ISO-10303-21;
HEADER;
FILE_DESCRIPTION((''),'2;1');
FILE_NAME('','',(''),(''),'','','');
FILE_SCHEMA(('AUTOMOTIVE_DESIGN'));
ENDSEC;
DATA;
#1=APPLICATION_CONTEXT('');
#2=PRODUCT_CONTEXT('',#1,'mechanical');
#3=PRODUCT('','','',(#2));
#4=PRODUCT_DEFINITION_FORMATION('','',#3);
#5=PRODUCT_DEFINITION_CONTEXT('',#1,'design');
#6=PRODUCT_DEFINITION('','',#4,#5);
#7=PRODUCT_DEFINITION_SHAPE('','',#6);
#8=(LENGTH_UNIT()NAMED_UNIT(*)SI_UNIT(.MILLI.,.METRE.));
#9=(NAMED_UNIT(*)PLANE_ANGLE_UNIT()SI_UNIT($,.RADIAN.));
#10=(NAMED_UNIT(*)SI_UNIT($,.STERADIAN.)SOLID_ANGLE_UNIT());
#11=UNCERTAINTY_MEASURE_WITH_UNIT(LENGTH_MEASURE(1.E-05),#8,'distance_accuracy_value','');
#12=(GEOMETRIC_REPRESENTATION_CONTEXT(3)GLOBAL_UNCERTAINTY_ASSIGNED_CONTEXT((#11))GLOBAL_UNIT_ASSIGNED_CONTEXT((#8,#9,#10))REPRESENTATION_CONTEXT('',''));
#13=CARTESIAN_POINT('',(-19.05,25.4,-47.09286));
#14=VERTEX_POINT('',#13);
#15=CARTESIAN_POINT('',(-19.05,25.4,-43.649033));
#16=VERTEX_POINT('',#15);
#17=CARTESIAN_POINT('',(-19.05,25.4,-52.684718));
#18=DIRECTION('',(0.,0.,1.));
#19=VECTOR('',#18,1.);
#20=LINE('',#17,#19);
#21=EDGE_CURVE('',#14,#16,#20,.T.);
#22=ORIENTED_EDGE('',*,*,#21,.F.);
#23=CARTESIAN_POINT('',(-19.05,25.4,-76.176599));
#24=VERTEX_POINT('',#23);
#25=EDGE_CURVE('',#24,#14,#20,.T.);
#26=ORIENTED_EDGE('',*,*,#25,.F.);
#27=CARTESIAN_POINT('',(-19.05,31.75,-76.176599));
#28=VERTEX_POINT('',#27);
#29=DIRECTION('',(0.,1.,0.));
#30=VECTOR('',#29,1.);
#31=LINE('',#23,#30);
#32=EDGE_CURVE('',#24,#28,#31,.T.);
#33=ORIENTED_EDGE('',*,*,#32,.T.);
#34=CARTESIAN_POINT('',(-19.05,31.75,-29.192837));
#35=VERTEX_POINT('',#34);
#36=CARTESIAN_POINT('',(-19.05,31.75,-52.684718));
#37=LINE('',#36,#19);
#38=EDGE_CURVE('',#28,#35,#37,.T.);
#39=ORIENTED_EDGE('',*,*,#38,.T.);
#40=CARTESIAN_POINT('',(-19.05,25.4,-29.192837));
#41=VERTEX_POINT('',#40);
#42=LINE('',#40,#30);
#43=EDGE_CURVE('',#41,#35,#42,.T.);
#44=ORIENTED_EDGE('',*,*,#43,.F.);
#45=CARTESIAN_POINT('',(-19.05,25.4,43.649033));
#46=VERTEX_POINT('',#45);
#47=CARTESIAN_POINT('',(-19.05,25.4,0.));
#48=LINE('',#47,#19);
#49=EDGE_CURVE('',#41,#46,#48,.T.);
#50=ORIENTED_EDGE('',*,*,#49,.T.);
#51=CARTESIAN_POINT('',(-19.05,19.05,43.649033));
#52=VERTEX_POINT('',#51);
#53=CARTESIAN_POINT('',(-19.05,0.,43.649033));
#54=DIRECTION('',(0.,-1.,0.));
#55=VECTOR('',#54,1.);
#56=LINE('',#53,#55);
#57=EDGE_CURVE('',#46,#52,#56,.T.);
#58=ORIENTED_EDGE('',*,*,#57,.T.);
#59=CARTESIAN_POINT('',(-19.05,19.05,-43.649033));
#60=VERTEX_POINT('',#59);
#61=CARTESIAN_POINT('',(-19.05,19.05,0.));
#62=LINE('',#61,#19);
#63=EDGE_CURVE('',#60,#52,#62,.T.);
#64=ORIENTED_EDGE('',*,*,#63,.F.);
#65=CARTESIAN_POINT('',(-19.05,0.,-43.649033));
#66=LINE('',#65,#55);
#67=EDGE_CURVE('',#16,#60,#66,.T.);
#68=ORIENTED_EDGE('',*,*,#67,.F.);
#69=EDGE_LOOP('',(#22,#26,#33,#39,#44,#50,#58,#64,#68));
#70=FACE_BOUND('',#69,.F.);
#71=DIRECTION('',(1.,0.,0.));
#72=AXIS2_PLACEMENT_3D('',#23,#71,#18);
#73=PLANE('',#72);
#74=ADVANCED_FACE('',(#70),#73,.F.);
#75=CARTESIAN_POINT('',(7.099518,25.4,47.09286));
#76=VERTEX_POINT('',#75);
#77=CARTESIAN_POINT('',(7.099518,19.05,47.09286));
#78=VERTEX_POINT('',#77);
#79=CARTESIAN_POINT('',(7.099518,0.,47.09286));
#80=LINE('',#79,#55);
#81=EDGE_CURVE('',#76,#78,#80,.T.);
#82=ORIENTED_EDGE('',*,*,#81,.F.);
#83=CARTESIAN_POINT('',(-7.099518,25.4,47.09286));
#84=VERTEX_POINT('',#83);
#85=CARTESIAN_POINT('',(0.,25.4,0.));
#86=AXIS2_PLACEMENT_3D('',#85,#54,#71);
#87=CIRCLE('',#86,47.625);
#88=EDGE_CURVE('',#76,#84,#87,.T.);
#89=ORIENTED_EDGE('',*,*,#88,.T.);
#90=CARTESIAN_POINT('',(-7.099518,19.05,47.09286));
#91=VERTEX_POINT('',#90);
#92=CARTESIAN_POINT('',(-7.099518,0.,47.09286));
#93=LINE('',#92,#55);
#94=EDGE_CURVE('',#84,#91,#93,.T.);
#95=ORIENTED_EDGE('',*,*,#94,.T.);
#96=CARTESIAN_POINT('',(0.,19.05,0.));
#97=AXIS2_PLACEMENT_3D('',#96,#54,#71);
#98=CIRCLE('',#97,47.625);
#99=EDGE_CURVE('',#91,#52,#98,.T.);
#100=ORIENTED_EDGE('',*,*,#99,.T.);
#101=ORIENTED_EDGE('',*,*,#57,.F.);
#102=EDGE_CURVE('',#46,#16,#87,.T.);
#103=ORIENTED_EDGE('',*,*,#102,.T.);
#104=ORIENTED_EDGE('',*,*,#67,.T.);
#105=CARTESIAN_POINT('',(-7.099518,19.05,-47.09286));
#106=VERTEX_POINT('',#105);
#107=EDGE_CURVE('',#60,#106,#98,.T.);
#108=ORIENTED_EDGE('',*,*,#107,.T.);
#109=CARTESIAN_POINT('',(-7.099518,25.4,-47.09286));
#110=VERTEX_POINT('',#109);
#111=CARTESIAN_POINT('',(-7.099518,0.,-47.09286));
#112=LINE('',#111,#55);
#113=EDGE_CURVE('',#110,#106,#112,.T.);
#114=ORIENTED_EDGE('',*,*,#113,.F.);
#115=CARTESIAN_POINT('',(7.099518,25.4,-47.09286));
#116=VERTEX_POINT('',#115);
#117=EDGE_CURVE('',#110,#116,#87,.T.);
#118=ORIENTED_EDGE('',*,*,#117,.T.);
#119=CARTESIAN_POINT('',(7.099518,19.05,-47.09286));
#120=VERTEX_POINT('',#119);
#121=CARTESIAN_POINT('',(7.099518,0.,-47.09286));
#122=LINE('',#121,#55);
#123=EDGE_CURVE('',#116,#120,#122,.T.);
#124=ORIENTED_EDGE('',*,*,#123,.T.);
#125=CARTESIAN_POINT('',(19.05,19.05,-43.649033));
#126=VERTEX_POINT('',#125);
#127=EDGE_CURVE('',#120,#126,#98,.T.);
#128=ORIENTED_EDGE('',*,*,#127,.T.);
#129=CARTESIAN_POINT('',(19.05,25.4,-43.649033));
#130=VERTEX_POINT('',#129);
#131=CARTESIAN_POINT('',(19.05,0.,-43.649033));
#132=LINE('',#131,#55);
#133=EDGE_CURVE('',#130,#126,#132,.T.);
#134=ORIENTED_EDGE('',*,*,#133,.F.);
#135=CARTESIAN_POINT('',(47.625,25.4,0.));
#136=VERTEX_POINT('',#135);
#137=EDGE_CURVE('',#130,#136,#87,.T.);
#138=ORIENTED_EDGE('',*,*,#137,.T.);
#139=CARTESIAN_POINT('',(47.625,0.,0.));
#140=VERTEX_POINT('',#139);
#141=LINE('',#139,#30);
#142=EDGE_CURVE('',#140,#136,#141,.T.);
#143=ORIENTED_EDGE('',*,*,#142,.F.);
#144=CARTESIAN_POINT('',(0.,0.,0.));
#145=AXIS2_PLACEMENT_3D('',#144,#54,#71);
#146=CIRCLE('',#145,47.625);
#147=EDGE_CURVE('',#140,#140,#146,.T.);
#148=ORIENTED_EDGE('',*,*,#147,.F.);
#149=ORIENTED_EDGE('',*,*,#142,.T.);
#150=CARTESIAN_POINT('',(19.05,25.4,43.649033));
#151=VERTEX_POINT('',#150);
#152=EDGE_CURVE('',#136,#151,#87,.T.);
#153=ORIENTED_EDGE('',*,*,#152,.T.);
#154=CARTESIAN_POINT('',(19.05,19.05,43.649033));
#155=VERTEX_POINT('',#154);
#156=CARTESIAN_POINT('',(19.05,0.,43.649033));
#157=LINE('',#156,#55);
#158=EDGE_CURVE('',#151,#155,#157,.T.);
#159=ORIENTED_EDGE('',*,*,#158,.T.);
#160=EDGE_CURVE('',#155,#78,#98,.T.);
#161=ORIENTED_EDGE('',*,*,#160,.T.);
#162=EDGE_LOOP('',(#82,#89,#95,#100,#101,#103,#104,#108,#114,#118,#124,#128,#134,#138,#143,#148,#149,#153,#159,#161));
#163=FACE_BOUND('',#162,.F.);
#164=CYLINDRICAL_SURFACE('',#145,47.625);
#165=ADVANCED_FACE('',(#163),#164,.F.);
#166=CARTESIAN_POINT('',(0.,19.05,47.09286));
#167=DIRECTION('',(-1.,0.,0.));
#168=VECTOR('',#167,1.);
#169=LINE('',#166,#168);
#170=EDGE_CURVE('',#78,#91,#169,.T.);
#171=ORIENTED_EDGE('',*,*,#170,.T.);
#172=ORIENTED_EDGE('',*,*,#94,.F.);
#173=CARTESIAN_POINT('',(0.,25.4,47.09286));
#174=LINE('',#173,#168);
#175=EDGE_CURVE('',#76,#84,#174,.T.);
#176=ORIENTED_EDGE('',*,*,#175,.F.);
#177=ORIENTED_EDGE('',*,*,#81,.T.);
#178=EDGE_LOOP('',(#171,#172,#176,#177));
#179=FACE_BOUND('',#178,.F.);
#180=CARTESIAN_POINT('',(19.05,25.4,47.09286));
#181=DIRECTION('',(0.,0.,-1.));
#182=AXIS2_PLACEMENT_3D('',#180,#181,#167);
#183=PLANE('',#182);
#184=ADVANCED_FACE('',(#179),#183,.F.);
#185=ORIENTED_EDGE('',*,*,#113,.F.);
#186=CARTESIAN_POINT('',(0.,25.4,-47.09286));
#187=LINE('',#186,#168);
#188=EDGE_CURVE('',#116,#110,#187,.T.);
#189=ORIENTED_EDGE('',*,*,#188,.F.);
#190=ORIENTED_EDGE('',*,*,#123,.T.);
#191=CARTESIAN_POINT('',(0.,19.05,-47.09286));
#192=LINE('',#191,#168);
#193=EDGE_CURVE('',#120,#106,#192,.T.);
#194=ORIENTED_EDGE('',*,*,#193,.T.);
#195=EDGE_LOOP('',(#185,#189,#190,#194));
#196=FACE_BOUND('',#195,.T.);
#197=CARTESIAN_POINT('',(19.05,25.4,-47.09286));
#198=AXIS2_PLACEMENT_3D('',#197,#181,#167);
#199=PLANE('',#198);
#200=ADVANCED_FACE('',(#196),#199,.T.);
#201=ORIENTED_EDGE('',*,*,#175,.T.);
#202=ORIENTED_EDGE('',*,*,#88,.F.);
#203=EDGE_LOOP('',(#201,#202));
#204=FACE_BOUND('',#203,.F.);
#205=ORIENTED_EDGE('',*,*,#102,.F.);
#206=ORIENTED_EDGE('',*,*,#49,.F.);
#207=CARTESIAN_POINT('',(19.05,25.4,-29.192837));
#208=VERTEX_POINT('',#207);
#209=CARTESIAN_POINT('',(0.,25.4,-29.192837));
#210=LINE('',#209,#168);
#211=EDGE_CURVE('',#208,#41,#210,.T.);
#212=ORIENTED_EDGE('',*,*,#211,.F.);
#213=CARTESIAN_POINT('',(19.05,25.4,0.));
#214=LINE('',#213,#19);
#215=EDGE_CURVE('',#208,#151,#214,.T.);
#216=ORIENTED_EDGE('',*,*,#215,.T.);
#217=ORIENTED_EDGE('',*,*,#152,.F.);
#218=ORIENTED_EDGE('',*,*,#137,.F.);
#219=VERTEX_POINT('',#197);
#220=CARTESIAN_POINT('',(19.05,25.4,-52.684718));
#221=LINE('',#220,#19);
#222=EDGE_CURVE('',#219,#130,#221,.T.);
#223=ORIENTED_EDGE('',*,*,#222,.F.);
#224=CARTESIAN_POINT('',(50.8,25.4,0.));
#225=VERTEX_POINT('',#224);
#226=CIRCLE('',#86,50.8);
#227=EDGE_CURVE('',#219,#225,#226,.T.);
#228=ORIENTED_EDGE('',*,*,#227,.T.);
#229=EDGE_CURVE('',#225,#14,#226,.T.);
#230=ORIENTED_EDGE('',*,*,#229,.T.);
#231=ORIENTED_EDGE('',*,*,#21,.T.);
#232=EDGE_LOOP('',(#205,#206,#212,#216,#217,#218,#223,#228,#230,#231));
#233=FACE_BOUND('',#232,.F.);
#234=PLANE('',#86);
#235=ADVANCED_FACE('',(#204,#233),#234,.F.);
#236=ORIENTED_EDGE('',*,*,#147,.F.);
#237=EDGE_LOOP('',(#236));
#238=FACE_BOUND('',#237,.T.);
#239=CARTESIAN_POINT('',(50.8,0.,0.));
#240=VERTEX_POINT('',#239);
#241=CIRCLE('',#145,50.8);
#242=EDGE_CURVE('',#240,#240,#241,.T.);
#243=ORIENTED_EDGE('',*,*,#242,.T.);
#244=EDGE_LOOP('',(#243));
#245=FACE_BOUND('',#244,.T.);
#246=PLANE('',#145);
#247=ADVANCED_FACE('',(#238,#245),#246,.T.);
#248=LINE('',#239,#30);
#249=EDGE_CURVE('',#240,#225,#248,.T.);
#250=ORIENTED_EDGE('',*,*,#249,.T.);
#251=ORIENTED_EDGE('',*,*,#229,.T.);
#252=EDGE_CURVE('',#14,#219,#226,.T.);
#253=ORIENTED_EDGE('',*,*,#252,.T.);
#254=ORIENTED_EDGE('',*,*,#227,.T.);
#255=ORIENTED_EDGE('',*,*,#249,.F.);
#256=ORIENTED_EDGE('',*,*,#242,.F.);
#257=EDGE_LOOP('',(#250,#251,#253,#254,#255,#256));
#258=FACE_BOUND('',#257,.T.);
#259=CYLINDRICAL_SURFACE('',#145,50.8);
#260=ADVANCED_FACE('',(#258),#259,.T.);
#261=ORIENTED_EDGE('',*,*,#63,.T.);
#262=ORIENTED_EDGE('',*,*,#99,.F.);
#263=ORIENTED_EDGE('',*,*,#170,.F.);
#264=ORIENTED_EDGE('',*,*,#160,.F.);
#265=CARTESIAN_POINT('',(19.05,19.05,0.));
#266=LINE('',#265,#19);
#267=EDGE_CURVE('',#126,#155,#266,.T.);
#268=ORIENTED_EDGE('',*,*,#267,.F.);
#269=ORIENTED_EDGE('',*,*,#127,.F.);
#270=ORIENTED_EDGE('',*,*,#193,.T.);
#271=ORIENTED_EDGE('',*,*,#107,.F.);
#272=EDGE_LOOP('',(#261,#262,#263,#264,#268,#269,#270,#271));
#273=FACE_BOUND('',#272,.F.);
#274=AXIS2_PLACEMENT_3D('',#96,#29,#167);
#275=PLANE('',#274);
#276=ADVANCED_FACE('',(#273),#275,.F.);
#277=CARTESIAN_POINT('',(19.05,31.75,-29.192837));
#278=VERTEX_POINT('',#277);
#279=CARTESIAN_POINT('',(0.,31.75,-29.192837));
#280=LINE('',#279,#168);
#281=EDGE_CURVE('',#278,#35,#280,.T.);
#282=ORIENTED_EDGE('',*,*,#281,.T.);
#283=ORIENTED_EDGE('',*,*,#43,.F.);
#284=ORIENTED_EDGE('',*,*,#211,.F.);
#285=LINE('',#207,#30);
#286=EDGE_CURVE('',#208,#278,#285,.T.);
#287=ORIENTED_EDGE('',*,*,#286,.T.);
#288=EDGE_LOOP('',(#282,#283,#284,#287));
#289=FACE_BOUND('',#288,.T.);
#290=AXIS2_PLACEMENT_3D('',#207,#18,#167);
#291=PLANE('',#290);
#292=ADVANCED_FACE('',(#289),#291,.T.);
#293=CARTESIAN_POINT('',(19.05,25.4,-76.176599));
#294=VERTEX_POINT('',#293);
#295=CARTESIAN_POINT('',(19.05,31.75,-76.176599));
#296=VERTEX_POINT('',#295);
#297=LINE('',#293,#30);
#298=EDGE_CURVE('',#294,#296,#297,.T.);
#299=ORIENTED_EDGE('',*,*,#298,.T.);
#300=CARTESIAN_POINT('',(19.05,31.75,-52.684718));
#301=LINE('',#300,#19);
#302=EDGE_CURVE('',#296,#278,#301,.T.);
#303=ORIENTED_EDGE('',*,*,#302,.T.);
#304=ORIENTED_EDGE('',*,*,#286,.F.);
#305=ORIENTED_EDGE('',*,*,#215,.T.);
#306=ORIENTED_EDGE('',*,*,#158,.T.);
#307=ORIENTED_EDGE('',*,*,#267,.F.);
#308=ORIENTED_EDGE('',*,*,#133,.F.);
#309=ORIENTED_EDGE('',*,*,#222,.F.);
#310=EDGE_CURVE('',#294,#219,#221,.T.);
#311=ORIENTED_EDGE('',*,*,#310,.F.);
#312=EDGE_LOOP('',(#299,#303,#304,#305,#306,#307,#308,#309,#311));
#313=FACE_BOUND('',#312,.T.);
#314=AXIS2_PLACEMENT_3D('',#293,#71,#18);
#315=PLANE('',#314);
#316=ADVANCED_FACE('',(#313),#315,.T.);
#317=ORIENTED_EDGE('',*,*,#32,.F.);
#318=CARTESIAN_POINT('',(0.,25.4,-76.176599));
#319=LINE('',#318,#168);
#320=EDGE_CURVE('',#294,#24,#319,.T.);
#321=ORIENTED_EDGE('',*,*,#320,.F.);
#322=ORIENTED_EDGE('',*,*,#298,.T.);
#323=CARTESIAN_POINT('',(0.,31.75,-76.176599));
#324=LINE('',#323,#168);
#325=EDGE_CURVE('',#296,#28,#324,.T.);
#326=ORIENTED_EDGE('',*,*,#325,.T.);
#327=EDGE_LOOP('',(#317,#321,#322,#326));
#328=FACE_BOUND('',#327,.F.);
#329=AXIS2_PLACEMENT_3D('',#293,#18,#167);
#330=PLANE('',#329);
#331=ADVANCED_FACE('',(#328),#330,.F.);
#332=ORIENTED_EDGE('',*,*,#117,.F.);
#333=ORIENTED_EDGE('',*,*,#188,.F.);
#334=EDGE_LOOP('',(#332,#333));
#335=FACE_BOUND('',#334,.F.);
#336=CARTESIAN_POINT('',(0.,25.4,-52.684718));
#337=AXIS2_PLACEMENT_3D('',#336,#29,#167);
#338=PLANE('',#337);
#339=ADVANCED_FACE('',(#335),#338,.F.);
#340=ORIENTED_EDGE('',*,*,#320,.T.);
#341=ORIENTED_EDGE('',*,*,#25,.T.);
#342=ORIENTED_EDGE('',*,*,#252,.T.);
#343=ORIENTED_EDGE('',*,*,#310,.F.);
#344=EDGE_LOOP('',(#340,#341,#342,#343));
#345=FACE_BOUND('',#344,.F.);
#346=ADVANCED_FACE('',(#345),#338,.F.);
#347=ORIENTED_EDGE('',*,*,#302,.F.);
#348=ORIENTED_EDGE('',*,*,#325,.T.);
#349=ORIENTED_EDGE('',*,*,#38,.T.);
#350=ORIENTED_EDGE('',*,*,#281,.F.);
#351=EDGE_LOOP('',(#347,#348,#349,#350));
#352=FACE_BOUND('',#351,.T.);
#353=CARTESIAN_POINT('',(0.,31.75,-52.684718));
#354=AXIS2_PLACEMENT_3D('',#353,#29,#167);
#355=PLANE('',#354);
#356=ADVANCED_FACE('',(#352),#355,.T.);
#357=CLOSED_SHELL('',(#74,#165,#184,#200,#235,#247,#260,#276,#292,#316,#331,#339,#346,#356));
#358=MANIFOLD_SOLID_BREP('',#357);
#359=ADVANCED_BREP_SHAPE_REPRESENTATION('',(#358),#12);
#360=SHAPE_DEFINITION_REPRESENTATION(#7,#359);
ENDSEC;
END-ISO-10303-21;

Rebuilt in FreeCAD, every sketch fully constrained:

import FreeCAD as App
import Part
import Sketcher

V = App.Vector
Q = App.Units.Quantity

doc = App.newDocument("Part")
body = doc.addObject("PartDesign::Body", "Body")

sketch1 = body.newObject("Sketcher::SketchObject", "Sketch")
sketch1.AttachmentSupport = (doc.getObject("XZ_Plane"), [""])
sketch1.MapMode = "FlatFace"
sketch1.addGeometry(Part.Circle(V(0, 0, 0), V(0, 0, 1), 50.8), False)
sketch1.addConstraint(Sketcher.Constraint("Coincident", 0, 3, -1, 1))
sketch1.addConstraint(Sketcher.Constraint("Diameter", 0, Q("4 in")))
pad1 = body.newObject("PartDesign::Pad", "Pad")
pad1.Profile = sketch1
pad1.Length = Q("1 in")
pad1.Reversed = True

sketch2 = body.newObject("Sketcher::SketchObject", "Sketch001")
sketch2.AttachmentSupport = (doc.getObject("XZ_Plane"), [""])
sketch2.MapMode = "FlatFace"
sketch2.addGeometry(Part.Circle(V(0, 0, 0), V(0, 0, 1), 47.625), False)
sketch2.addConstraint(Sketcher.Constraint("Coincident", 0, 3, -1, 1))
sketch2.addConstraint(Sketcher.Constraint("Diameter", 0, Q("3.75 in")))
pocket1 = body.newObject("PartDesign::Pocket", "Pocket")
pocket1.Profile = sketch2
pocket1.Length = Q("1 in")

sketch3 = body.newObject("Sketcher::SketchObject", "Sketch002")
sketch3.AttachmentSupport = (doc.getObject("XZ_Plane"), [""])
sketch3.MapMode = "FlatFace"
sketch3.AttachmentOffset = App.Placement(V(0, 0, -1 * 25.4), App.Rotation())
sketch3.addGeometry(Part.LineSegment(V(19.05, 47.09286, 0), V(19.05, -47.09286, 0)), False)
sketch3.addGeometry(Part.LineSegment(V(19.05, -47.09286, 0), V(-19.05, -47.09286, 0)), False)
sketch3.addGeometry(Part.LineSegment(V(-19.05, -47.09286, 0), V(-19.05, 47.09286, 0)), False)
sketch3.addGeometry(Part.LineSegment(V(-19.05, 47.09286, 0), V(19.05, 47.09286, 0)), False)
sketch3.addConstraint(Sketcher.Constraint("Coincident", 0, 2, 1, 1))
sketch3.addConstraint(Sketcher.Constraint("Coincident", 1, 2, 2, 1))
sketch3.addConstraint(Sketcher.Constraint("Coincident", 2, 2, 3, 1))
sketch3.addConstraint(Sketcher.Constraint("Coincident", 3, 2, 0, 1))
sketch3.addConstraint(Sketcher.Constraint("Vertical", 0))
sketch3.addConstraint(Sketcher.Constraint("Horizontal", 1))
sketch3.addConstraint(Sketcher.Constraint("Vertical", 2))
sketch3.addConstraint(Sketcher.Constraint("Horizontal", 3))
sketch3.addConstraint(Sketcher.Constraint("Symmetric", 0, 2, 2, 2, -1, 1))
sketch3.addConstraint(Sketcher.Constraint("DistanceX", 1, 2, 1, 1, Q("1.5 in")))
sketch3.addConstraint(Sketcher.Constraint("DistanceY", 0, 2, 0, 1, Q("94.18572 mm")))
pad2 = body.newObject("PartDesign::Pad", "Pad001")
pad2.Profile = sketch3
pad2.Length = Q("0.25 in")

sketch4 = body.newObject("Sketcher::SketchObject", "Sketch003")
sketch4.AttachmentSupport = (doc.getObject("XZ_Plane"), [""])
sketch4.MapMode = "FlatFace"
sketch4.AttachmentOffset = App.Placement(V(0, 0, -1 * 25.4), App.Rotation())
sketch4.addGeometry(Part.LineSegment(V(19.05, -29.192837, 0), V(19.05, -76.176599, 0)), False)
sketch4.addGeometry(Part.LineSegment(V(19.05, -76.176599, 0), V(-19.05, -76.176599, 0)), False)
sketch4.addGeometry(Part.LineSegment(V(-19.05, -76.176599, 0), V(-19.05, -29.192837, 0)), False)
sketch4.addGeometry(Part.LineSegment(V(-19.05, -29.192837, 0), V(19.05, -29.192837, 0)), False)
sketch4.addConstraint(Sketcher.Constraint("Coincident", 0, 2, 1, 1))
sketch4.addConstraint(Sketcher.Constraint("Coincident", 1, 2, 2, 1))
sketch4.addConstraint(Sketcher.Constraint("Coincident", 2, 2, 3, 1))
sketch4.addConstraint(Sketcher.Constraint("Coincident", 3, 2, 0, 1))
sketch4.addConstraint(Sketcher.Constraint("Vertical", 0))
sketch4.addConstraint(Sketcher.Constraint("Horizontal", 1))
sketch4.addConstraint(Sketcher.Constraint("Vertical", 2))
sketch4.addConstraint(Sketcher.Constraint("Horizontal", 3))
sketch4.addConstraint(Sketcher.Constraint("DistanceX", 1, 2, 1, 1, Q("1.5 in")))
sketch4.addConstraint(Sketcher.Constraint("DistanceX", -1, 1, 0, 2, Q("0.75 in")))
sketch4.addConstraint(Sketcher.Constraint("DistanceY", 0, 2, -1, 1, Q("76.176599 mm")))
sketch4.addConstraint(Sketcher.Constraint("DistanceY", 0, 2, 0, 1, Q("46.983762 mm")))
pad3 = body.newObject("PartDesign::Pad", "Pad002")
pad3.Profile = sketch4
pad3.Length = Q("0.25 in")
pad3.Reversed = True

doc.recompute()
